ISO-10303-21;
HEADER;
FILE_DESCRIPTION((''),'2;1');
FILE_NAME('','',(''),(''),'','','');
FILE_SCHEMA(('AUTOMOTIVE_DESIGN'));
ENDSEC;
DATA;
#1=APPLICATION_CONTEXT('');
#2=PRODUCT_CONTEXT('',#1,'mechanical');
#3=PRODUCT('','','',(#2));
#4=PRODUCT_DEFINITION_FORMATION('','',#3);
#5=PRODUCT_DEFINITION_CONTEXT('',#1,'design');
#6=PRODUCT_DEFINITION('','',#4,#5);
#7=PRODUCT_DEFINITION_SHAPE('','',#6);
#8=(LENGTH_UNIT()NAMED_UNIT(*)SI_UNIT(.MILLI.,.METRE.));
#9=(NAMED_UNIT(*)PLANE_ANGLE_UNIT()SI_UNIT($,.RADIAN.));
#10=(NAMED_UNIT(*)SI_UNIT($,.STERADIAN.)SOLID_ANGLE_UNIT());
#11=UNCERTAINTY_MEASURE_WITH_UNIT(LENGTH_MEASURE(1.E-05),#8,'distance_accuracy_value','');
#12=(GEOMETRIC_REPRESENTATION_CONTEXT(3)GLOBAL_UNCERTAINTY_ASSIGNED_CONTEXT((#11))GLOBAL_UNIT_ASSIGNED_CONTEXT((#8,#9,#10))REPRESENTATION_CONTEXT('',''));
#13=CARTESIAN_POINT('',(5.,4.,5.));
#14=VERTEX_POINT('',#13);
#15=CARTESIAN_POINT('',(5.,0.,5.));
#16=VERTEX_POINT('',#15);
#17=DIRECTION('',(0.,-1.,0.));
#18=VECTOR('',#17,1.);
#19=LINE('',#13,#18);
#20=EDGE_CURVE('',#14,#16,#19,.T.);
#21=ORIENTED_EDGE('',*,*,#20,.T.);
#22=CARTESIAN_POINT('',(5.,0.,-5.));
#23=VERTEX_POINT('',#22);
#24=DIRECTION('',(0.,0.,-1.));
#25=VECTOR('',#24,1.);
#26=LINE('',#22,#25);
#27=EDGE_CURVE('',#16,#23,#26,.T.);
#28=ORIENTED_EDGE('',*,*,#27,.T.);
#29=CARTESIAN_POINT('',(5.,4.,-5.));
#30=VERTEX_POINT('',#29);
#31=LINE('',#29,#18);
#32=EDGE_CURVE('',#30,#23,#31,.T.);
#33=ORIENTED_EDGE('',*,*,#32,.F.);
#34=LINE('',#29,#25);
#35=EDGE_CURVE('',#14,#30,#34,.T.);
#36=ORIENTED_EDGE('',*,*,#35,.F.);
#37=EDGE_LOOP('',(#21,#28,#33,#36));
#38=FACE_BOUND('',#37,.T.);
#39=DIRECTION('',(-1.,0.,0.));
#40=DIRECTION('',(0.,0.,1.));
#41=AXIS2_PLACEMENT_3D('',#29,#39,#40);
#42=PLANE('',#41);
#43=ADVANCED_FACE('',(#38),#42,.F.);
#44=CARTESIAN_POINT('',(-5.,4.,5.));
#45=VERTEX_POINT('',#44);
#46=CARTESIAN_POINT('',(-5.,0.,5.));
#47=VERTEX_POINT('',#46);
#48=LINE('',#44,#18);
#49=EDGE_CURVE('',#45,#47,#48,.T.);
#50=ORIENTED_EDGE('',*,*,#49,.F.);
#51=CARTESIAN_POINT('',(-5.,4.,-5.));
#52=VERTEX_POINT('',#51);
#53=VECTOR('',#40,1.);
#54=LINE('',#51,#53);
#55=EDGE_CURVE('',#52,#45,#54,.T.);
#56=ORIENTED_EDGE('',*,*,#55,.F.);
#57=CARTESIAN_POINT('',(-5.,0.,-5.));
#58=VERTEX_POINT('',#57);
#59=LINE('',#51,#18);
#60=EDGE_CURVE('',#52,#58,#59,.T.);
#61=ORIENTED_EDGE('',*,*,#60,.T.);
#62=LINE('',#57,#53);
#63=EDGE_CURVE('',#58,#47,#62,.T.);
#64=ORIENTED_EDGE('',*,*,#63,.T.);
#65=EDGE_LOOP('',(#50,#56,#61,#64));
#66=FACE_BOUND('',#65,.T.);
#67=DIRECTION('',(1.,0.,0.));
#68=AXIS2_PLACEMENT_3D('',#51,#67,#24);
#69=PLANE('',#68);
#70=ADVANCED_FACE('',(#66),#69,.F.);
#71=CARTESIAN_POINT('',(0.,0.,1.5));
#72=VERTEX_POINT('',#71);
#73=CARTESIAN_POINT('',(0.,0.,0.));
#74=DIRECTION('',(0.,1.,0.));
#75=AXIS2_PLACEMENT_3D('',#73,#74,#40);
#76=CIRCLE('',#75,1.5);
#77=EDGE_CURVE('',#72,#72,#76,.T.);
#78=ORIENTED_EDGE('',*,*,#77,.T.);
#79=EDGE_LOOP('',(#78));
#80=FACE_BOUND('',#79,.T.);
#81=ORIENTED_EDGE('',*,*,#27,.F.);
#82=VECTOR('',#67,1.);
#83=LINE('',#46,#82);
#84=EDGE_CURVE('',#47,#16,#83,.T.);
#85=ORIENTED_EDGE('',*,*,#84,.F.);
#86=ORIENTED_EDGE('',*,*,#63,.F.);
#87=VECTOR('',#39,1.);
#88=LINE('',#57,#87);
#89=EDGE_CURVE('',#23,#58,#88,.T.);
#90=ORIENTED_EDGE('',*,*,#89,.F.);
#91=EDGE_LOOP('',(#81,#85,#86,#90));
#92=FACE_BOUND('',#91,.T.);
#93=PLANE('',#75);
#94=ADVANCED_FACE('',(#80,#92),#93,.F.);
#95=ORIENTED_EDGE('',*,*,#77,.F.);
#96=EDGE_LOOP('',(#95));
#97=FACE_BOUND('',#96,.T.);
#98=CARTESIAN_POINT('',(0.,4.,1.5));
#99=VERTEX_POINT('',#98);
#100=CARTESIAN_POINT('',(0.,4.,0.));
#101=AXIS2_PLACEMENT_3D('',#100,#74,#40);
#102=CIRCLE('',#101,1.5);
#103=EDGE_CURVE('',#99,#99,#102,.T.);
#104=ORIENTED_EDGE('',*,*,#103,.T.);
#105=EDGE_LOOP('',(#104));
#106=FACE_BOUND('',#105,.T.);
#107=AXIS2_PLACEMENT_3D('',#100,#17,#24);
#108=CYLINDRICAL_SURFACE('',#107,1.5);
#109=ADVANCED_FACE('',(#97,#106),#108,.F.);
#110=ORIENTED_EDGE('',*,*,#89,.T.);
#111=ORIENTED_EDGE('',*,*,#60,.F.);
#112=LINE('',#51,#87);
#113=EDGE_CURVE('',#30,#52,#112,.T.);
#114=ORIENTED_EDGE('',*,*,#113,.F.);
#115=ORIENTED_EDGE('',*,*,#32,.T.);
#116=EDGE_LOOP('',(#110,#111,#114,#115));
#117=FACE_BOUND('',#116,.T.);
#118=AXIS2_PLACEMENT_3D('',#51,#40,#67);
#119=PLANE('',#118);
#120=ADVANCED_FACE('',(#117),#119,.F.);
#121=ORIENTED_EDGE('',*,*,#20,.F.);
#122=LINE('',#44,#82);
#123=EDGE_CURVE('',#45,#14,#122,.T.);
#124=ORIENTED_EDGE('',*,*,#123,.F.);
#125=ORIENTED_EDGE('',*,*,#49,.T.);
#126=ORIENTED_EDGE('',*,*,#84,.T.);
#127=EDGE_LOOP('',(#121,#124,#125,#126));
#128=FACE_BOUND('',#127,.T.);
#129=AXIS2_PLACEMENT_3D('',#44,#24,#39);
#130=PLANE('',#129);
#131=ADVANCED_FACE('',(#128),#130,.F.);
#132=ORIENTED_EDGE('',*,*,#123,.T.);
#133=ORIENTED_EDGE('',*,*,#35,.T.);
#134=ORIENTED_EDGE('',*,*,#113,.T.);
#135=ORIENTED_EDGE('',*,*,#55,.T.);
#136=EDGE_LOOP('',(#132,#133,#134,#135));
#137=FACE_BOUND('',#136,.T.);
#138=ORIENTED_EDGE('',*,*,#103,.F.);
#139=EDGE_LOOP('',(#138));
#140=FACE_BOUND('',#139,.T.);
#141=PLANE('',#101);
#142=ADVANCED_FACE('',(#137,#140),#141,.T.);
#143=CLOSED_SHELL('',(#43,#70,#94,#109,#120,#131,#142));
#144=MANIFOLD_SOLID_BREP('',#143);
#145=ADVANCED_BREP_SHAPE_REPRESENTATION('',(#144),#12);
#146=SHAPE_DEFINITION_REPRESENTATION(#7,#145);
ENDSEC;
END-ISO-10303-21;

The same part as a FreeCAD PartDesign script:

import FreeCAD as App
import Part
import Sketcher

V = App.Vector
Q = App.Units.Quantity


def add_polygon(sketch, points):
    """Adds a closed chain of lines whose ends are joined by coincident constraints."""
    first, n = sketch.GeometryCount, len(points)
    for a, b in zip(points, points[1:] + points[:1]):
        sketch.addGeometry(Part.LineSegment(App.Vector(*a, 0), App.Vector(*b, 0)), False)
    for i in range(n):
        sketch.addConstraint(Sketcher.Constraint("Coincident", first + i, 2, first + (i + 1) % n, 1))

doc = App.newDocument("Part")
body = doc.addObject("PartDesign::Body", "Body")

sketch1 = doc.addObject("Sketcher::SketchObject", "Sketch")
body.addObject(sketch1)
sketch1.AttachmentSupport = (doc.XZ_Plane, [""])
sketch1.MapMode = "FlatFace"
add_polygon(sketch1, [(-5, -5), (-5, 5), (5, 5), (5, -5)])
sketch1.addGeometry(Part.Circle(V(0, 0, 0), V(0, 0, 1), 1.5), False)
sketch1.addConstraint([
    Sketcher.Constraint("Vertical", 0),
    Sketcher.Constraint("Horizontal", 1),
    Sketcher.Constraint("Vertical", 2),
    Sketcher.Constraint("Horizontal", 3),
    Sketcher.Constraint("Coincident", 4, 3, -1, 1),
    Sketcher.Constraint("Symmetric", 0, 2, 2, 2, -1, 1),
    Sketcher.Constraint("Equal", 3, 0),
    Sketcher.Constraint("Diameter", 4, Q("3 mm")),
    Sketcher.Constraint("DistanceX", 1, 1, 1, 2, Q("10 mm")),
])
pad1 = doc.addObject("PartDesign::Pad", "Pad")
body.addObject(pad1)
pad1.Profile = sketch1
pad1.Length = 4
pad1.Reversed = True

doc.recompute()
